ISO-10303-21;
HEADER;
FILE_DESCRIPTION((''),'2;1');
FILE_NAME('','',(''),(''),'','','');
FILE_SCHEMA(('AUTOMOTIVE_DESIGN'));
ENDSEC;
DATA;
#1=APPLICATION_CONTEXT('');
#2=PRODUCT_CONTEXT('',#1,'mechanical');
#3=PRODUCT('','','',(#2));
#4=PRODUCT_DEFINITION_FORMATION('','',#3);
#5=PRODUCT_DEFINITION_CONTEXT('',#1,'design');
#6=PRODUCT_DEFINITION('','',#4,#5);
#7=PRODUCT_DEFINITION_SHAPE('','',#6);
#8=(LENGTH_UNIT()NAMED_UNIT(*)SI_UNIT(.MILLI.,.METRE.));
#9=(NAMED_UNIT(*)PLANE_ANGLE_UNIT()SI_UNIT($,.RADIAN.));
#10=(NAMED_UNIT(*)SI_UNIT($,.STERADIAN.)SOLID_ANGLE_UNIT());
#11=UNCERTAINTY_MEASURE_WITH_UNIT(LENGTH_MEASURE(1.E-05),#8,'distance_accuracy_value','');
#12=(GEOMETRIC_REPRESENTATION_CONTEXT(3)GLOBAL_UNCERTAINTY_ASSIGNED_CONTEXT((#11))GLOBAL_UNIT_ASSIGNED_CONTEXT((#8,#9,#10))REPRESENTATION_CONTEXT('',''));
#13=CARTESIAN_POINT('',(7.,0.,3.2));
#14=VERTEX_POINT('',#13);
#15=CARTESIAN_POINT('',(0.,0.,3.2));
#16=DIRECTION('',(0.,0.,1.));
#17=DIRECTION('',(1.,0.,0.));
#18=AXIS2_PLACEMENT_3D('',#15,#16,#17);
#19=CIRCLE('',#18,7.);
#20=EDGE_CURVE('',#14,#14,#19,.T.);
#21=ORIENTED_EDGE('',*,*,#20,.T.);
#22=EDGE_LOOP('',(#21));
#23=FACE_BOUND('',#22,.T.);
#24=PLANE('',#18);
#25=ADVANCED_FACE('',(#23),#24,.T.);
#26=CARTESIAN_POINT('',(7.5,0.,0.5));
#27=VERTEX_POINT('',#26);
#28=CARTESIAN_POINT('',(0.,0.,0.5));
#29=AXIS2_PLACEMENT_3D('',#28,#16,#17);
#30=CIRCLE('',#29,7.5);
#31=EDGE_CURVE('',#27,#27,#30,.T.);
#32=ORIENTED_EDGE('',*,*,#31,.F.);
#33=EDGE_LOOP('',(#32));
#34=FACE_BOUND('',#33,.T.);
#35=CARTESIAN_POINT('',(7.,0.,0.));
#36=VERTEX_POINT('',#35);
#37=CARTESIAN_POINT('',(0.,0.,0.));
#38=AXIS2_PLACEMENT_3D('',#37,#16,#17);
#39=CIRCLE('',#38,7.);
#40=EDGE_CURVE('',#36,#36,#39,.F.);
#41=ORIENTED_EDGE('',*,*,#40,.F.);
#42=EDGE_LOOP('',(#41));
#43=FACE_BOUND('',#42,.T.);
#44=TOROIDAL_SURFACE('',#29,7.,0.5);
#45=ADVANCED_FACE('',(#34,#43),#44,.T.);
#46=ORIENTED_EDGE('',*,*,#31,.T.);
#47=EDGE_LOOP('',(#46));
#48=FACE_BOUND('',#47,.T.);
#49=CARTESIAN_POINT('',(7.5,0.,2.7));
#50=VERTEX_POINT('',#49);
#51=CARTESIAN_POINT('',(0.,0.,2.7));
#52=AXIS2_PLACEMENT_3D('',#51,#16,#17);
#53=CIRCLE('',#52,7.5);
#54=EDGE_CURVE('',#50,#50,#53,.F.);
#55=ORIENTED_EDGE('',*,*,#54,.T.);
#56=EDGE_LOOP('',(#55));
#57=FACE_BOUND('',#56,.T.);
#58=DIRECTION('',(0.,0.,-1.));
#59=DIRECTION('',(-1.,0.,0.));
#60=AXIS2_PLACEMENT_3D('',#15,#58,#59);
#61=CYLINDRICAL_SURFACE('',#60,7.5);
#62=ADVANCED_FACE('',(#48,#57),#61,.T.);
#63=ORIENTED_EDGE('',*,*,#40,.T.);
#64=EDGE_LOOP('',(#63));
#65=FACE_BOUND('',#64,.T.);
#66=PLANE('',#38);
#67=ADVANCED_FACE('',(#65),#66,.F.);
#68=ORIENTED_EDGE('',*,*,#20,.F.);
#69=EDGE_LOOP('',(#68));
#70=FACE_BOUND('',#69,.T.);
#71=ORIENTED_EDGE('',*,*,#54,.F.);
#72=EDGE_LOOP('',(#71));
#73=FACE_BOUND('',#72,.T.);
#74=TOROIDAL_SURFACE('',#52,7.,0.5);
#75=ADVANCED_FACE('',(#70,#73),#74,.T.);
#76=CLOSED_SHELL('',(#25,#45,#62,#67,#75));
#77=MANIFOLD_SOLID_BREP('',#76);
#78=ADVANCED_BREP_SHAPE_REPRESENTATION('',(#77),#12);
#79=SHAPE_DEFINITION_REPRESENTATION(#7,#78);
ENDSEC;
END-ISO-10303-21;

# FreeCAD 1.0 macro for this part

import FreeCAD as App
import Part
import Sketcher

V = App.Vector
Q = App.Units.Quantity


def edges_at(feature, points):
    """Names of the edges that pass closest to the given points."""
    edges = feature.Shape.Edges
    near = lambda p: min(range(len(edges)), key=lambda i: edges[i].distToShape(Part.Vertex(*p))[0])
    return sorted({f"Edge{near(p) + 1}" for p in points})

doc = App.newDocument("Part")
body = doc.addObject("PartDesign::Body", "Body")

# Sketch on XY plane
sketch1 = body.newObject("Sketcher::SketchObject", "Sketch")
sketch1.AttachmentSupport = (doc.getObject("XY_Plane"), [""])
sketch1.MapMode = "FlatFace"
sketch1.addGeometry(Part.Circle(V(0, 0, 0), V(0, 0, 1), 8), False)
sketch1.addConstraint(Sketcher.Constraint("Coincident", 0, 3, -1, 1))
sketch1.addConstraint(Sketcher.Constraint("Diameter", 0, Q("15 mm")))
pad1 = body.newObject("PartDesign::Pad", "Pad")
pad1.Profile = sketch1
pad1.Length = 3.2
doc.recompute()

fillet = body.newObject("PartDesign::Fillet", "Fillet")
fillet.Base = (pad1, edges_at(pad1, [(-7.5, 0, 0), (-7.5, 0, 3.2)]))
fillet.Radius = 0.5

doc.recompute()
